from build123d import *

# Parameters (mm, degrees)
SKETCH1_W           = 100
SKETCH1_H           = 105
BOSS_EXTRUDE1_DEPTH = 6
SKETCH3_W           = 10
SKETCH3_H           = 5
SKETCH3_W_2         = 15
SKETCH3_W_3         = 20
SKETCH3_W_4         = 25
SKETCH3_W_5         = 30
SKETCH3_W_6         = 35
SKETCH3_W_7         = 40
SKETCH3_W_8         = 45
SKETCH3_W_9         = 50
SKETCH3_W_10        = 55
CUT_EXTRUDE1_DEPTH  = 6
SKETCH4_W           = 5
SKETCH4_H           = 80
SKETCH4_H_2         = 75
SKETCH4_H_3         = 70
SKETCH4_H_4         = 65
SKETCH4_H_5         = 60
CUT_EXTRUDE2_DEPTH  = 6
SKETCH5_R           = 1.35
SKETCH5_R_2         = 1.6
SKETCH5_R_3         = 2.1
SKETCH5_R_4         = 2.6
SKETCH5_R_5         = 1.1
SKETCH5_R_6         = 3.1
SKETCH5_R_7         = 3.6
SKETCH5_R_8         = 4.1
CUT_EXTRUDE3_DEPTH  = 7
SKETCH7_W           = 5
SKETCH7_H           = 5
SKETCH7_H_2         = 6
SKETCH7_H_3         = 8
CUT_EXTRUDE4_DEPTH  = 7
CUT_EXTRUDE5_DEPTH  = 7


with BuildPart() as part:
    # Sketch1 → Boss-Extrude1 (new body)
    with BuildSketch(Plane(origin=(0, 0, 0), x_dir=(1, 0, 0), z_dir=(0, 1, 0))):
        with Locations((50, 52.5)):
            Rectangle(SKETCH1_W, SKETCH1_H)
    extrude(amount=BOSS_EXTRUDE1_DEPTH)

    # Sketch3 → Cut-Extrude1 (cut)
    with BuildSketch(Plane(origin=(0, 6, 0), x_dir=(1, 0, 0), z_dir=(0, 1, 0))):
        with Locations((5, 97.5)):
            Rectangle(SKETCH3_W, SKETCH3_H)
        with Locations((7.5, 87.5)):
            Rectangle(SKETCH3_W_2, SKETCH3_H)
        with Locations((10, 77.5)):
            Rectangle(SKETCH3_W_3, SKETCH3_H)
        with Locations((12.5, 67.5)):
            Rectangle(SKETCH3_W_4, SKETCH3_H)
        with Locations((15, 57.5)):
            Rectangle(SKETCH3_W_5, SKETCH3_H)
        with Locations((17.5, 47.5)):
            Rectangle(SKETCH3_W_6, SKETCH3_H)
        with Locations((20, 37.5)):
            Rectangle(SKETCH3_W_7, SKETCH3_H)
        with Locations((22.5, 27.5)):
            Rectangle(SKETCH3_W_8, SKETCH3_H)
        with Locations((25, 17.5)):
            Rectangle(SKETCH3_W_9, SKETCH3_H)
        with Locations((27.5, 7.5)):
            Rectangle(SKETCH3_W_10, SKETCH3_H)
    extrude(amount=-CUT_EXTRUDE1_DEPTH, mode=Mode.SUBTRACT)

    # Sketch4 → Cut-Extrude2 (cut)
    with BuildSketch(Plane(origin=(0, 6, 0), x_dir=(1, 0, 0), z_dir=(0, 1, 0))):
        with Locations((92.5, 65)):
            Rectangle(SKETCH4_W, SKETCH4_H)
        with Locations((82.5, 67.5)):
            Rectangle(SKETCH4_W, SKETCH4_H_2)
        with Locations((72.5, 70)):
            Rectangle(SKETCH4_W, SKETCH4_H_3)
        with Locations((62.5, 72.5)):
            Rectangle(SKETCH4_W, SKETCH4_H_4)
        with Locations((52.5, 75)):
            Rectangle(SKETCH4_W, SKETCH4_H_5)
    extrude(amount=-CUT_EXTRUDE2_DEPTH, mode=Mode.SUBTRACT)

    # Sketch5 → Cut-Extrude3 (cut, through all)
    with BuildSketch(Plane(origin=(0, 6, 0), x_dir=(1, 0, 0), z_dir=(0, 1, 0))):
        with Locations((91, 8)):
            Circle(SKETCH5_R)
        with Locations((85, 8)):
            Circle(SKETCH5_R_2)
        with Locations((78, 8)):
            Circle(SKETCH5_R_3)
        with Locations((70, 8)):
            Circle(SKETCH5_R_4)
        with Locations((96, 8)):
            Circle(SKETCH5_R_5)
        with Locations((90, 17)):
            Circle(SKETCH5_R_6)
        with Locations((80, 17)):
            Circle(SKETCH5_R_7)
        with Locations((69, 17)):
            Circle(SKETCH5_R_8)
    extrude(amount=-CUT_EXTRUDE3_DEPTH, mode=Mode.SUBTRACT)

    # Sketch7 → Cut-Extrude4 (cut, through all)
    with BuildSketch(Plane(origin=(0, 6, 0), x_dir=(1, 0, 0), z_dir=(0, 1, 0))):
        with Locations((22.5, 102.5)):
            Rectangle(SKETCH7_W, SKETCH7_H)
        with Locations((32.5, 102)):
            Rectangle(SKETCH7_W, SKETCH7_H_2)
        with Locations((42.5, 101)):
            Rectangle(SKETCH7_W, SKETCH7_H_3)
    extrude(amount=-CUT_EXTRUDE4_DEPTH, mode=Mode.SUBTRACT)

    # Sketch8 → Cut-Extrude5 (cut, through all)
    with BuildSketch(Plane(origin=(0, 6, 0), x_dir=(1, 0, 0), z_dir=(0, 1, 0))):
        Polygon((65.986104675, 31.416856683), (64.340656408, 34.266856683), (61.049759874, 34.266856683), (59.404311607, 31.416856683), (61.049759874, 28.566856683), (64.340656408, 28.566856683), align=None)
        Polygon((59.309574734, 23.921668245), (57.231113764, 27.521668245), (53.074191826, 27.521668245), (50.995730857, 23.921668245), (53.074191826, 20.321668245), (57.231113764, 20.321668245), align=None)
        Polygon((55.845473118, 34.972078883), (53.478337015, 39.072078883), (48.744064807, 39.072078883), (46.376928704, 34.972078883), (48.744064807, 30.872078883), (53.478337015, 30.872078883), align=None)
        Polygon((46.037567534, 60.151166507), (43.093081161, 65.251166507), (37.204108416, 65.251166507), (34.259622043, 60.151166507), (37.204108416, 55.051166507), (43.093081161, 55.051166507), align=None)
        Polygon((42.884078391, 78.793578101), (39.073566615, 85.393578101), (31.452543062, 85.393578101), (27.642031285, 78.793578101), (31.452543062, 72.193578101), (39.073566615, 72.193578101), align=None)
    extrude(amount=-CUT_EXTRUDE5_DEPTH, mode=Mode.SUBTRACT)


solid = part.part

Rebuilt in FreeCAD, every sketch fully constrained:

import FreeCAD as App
import Part
import Sketcher
from FreeCAD import Vector
Q = App.Units.Quantity

doc = App.newDocument("Part")
params = doc.addObject("Spreadsheet::Sheet", "Params")
for row, (alias, value) in enumerate([
    ("sketch1_width", "100 mm"),
    ("sketch1_height", "105 mm"),
    ("pad1_length", "6 mm"),
    ("sketch2_width", "10 mm"),
    ("sketch2_width2", "15 mm"),
    ("sketch2_width3", "20 mm"),
    ("sketch2_width4", "25 mm"),
    ("sketch2_width5", "30 mm"),
    ("pocket1_length", "6 mm"),
    ("sketch3_width", "5 mm"),
    ("sketch3_height", "80 mm"),
    ("sketch3_height2", "75 mm"),
    ("sketch3_height3", "70 mm"),
    ("sketch3_height4", "65 mm"),
    ("pocket2_length", "6 mm"),
    ("sketch4_diameter", "2.7 mm"),
    ("sketch4_diameter2", "3.2 mm"),
    ("sketch4_diameter3", "4.2 mm"),
    ("sketch4_diameter4", "5.2 mm"),
    ("sketch4_diameter5", "2.2 mm"),
    ("sketch5_width", "5 mm"),
    ("sketch5_height", "6 mm"),
    ("sketch5_height2", "8 mm"),
], start=1):
    params.set(f"A{row}", alias)
    params.set(f"B{row}", "=" + value)
    params.setAlias(f"B{row}", alias)

body = doc.addObject("PartDesign::Body", "Body")

# Sketch on XZ plane
sketch1 = doc.addObject("Sketcher::SketchObject", "Sketch")
body.addObject(sketch1)
sketch1.AttachmentSupport = (doc.XZ_Plane, [""])
sketch1.MapMode = "FlatFace"
sketch1.addGeometry(Part.LineSegment(Vector(0, -105, 0), Vector(0, 0, 0)), False)
sketch1.addGeometry(Part.LineSegment(Vector(0, 0, 0), Vector(100, 0, 0)), False)
sketch1.addGeometry(Part.LineSegment(Vector(100, 0, 0), Vector(100, -105, 0)), False)
sketch1.addGeometry(Part.LineSegment(Vector(100, -105, 0), Vector(0, -105, 0)), False)
sketch1.addConstraint(Sketcher.Constraint("Coincident", 0, 2, 1, 1))
sketch1.addConstraint(Sketcher.Constraint("Coincident", 1, 2, 2, 1))
sketch1.addConstraint(Sketcher.Constraint("Coincident", 2, 2, 3, 1))
sketch1.addConstraint(Sketcher.Constraint("Coincident", 3, 2, 0, 1))
sketch1.addConstraint(Sketcher.Constraint("Vertical", 0))
sketch1.addConstraint(Sketcher.Constraint("Horizontal", 1))
sketch1.addConstraint(Sketcher.Constraint("Vertical", 2))
sketch1.addConstraint(Sketcher.Constraint("Horizontal", 3))
sketch1.addConstraint(Sketcher.Constraint("Coincident", 0, 2, -1, 1))
sketch1.addConstraint(Sketcher.Constraint("DistanceX", 1, 1, 1, 2, 100.0))
sketch1.addConstraint(Sketcher.Constraint("DistanceY", 0, 1, 0, 2, 105.0))
sketch1.setExpression("Constraints[9]", "Params.sketch1_width")
sketch1.setExpression("Constraints[10]", "Params.sketch1_height")
pad1 = doc.addObject("PartDesign::Pad", "Pad")
body.addObject(pad1)
pad1.Profile = sketch1
pad1.setExpression("Length", "Params.pad1_length")
pad1.Reversed = True

# Sketch on XZ plane
sketch2 = doc.addObject("Sketcher::SketchObject", "Sketch001")
body.addObject(sketch2)
sketch2.AttachmentSupport = (doc.XZ_Plane, [""])
sketch2.MapMode = "FlatFace"
sketch2.AttachmentOffset = App.Placement(Vector(0, 0, -6), App.Rotation())
sketch2.addGeometry(Part.LineSegment(Vector(0, -100, 0), Vector(0, -95, 0)), False)
sketch2.addGeometry(Part.LineSegment(Vector(0, -95, 0), Vector(10, -95, 0)), False)
sketch2.addGeometry(Part.LineSegment(Vector(10, -95, 0), Vector(10, -100, 0)), False)
sketch2.addGeometry(Part.LineSegment(Vector(10, -100, 0), Vector(0, -100, 0)), False)
sketch2.addGeometry(Part.LineSegment(Vector(0, -90, 0), Vector(0, -85, 0)), False)
sketch2.addGeometry(Part.LineSegment(Vector(0, -85, 0), Vector(15, -85, 0)), False)
sketch2.addGeometry(Part.LineSegment(Vector(15, -85, 0), Vector(15, -90, 0)), False)
sketch2.addGeometry(Part.LineSegment(Vector(15, -90, 0), Vector(0, -90, 0)), False)
sketch2.addGeometry(Part.LineSegment(Vector(0, -80, 0), Vector(0, -75, 0)), False)
sketch2.addGeometry(Part.LineSegment(Vector(0, -75, 0), Vector(20, -75, 0)), False)
sketch2.addGeometry(Part.LineSegment(Vector(20, -75, 0), Vector(20, -80, 0)), False)
sketch2.addGeometry(Part.LineSegment(Vector(20, -80, 0), Vector(0, -80, 0)), False)
sketch2.addGeometry(Part.LineSegment(Vector(0, -70, 0), Vector(0, -65, 0)), False)
sketch2.addGeometry(Part.LineSegment(Vector(0, -65, 0), Vector(25, -65, 0)), False)
sketch2.addGeometry(Part.LineSegment(Vector(25, -65, 0), Vector(25, -70, 0)), False)
sketch2.addGeometry(Part.LineSegment(Vector(25, -70, 0), Vector(0, -70, 0)), False)
sketch2.addGeometry(Part.LineSegment(Vector(0, -60, 0), Vector(0, -55, 0)), False)
sketch2.addGeometry(Part.LineSegment(Vector(0, -55, 0), Vector(30, -55, 0)), False)
sketch2.addGeometry(Part.LineSegment(Vector(30, -55, 0), Vector(30, -60, 0)), False)
sketch2.addGeometry(Part.LineSegment(Vector(30, -60, 0), Vector(0, -60, 0)), False)
sketch2.addGeometry(Part.LineSegment(Vector(0, -50, 0), Vector(0, -45, 0)), False)
sketch2.addGeometry(Part.LineSegment(Vector(0, -45, 0), Vector(35, -45, 0)), False)
sketch2.addGeometry(Part.LineSegment(Vector(35, -45, 0), Vector(35, -50, 0)), False)
sketch2.addGeometry(Part.LineSegment(Vector(35, -50, 0), Vector(0, -50, 0)), False)
sketch2.addGeometry(Part.LineSegment(Vector(0, -40, 0), Vector(0, -35, 0)), False)
sketch2.addGeometry(Part.LineSegment(Vector(0, -35, 0), Vector(40, -35, 0)), False)
sketch2.addGeometry(Part.LineSegment(Vector(40, -35, 0), Vector(40, -40, 0)), False)
sketch2.addGeometry(Part.LineSegment(Vector(40, -40, 0), Vector(0, -40, 0)), False)
sketch2.addGeometry(Part.LineSegment(Vector(0, -30, 0), Vector(0, -25, 0)), False)
sketch2.addGeometry(Part.LineSegment(Vector(0, -25, 0), Vector(45, -25, 0)), False)
sketch2.addGeometry(Part.LineSegment(Vector(45, -25, 0), Vector(45, -30, 0)), False)
sketch2.addGeometry(Part.LineSegment(Vector(45, -30, 0), Vector(0, -30, 0)), False)
sketch2.addGeometry(Part.LineSegment(Vector(0, -20, 0), Vector(0, -15, 0)), False)
sketch2.addGeometry(Part.LineSegment(Vector(0, -15, 0), Vector(50, -15, 0)), False)
sketch2.addGeometry(Part.LineSegment(Vector(50, -15, 0), Vector(50, -20, 0)), False)
sketch2.addGeometry(Part.LineSegment(Vector(50, -20, 0), Vector(0, -20, 0)), False)
sketch2.addGeometry(Part.LineSegment(Vector(0, -10, 0), Vector(0, -5, 0)), False)
sketch2.addGeometry(Part.LineSegment(Vector(0, -5, 0), Vector(55, -5, 0)), False)
sketch2.addGeometry(Part.LineSegment(Vector(55, -5, 0), Vector(55, -10, 0)), False)
sketch2.addGeometry(Part.LineSegment(Vector(55, -10, 0), Vector(0, -10, 0)), False)
sketch2.addConstraint(Sketcher.Constraint("Coincident", 0, 2, 1, 1))
sketch2.addConstraint(Sketcher.Constraint("Coincident", 1, 2, 2, 1))
sketch2.addConstraint(Sketcher.Constraint("Coincident", 2, 2, 3, 1))
sketch2.addConstraint(Sketcher.Constraint("Coincident", 3, 2, 0, 1))
sketch2.addConstraint(Sketcher.Constraint("Coincident", 4, 2, 5, 1))
sketch2.addConstraint(Sketcher.Constraint("Coincident", 5, 2, 6, 1))
sketch2.addConstraint(Sketcher.Constraint("Coincident", 6, 2, 7, 1))
sketch2.addConstraint(Sketcher.Constraint("Coincident", 7, 2, 4, 1))
sketch2.addConstraint(Sketcher.Constraint("Coincident", 8, 2, 9, 1))
sketch2.addConstraint(Sketcher.Constraint("Coincident", 9, 2, 10, 1))
sketch2.addConstraint(Sketcher.Constraint("Coincident", 10, 2, 11, 1))
sketch2.addConstraint(Sketcher.Constraint("Coincident", 11, 2, 8, 1))
sketch2.addConstraint(Sketcher.Constraint("Coincident", 12, 2, 13, 1))
sketch2.addConstraint(Sketcher.Constraint("Coincident", 13, 2, 14, 1))
sketch2.addConstraint(Sketcher.Constraint("Coincident", 14, 2, 15, 1))
sketch2.addConstraint(Sketcher.Constraint("Coincident", 15, 2, 12, 1))
sketch2.addConstraint(Sketcher.Constraint("Coincident", 16, 2, 17, 1))
sketch2.addConstraint(Sketcher.Constraint("Coincident", 17, 2, 18, 1))
sketch2.addConstraint(Sketcher.Constraint("Coincident", 18, 2, 19, 1))
sketch2.addConstraint(Sketcher.Constraint("Coincident", 19, 2, 16, 1))
sketch2.addConstraint(Sketcher.Constraint("Coincident", 20, 2, 21, 1))
sketch2.addConstraint(Sketcher.Constraint("Coincident", 21, 2, 22, 1))
sketch2.addConstraint(Sketcher.Constraint("Coincident", 22, 2, 23, 1))
sketch2.addConstraint(Sketcher.Constraint("Coincident", 23, 2, 20, 1))
sketch2.addConstraint(Sketcher.Constraint("Coincident", 24, 2, 25, 1))
sketch2.addConstraint(Sketcher.Constraint("Coincident", 25, 2, 26, 1))
sketch2.addConstraint(Sketcher.Constraint("Coincident", 26, 2, 27, 1))
sketch2.addConstraint(Sketcher.Constraint("Coincident", 27, 2, 24, 1))
sketch2.addConstraint(Sketcher.Constraint("Coincident", 28, 2, 29, 1))
sketch2.addConstraint(Sketcher.Constraint("Coincident", 29, 2, 30, 1))
sketch2.addConstraint(Sketcher.Constraint("Coincident", 30, 2, 31, 1))
sketch2.addConstraint(Sketcher.Constraint("Coincident", 31, 2, 28, 1))
sketch2.addConstraint(Sketcher.Constraint("Coincident", 32, 2, 33, 1))
sketch2.addConstraint(Sketcher.Constraint("Coincident", 33, 2, 34, 1))
sketch2.addConstraint(Sketcher.Constraint("Coincident", 34, 2, 35, 1))
sketch2.addConstraint(Sketcher.Constraint("Coincident", 35, 2, 32, 1))
sketch2.addConstraint(Sketcher.Constraint("Coincident", 36, 2, 37, 1))
sketch2.addConstraint(Sketcher.Constraint("Coincident", 37, 2, 38, 1))
sketch2.addConstraint(Sketcher.Constraint("Coincident", 38, 2, 39, 1))
sketch2.addConstraint(Sketcher.Constraint("Coincident", 39, 2, 36, 1))
sketch2.addConstraint(Sketcher.Constraint("Vertical", 0))
sketch2.addConstraint(Sketcher.Constraint("Horizontal", 1))
sketch2.addConstraint(Sketcher.Constraint("Vertical", 2))
sketch2.addConstraint(Sketcher.Constraint("Horizontal", 3))
sketch2.addConstraint(Sketcher.Constraint("Vertical", 4))
sketch2.addConstraint(Sketcher.Constraint("Horizontal", 5))
sketch2.addConstraint(Sketcher.Constraint("Vertical", 6))
sketch2.addConstraint(Sketcher.Constraint("Horizontal", 7))
sketch2.addConstraint(Sketcher.Constraint("Vertical", 8))
sketch2.addConstraint(Sketcher.Constraint("Horizontal", 9))
sketch2.addConstraint(Sketcher.Constraint("Vertical", 10))
sketch2.addConstraint(Sketcher.Constraint("Horizontal", 11))
sketch2.addConstraint(Sketcher.Constraint("Vertical", 12))
sketch2.addConstraint(Sketcher.Constraint("Horizontal", 13))
sketch2.addConstraint(Sketcher.Constraint("Vertical", 14))
sketch2.addConstraint(Sketcher.Constraint("Horizontal", 15))
sketch2.addConstraint(Sketcher.Constraint("Vertical", 16))
sketch2.addConstraint(Sketcher.Constraint("Horizontal", 17))
sketch2.addConstraint(Sketcher.Constraint("Vertical", 18))
sketch2.addConstraint(Sketcher.Constraint("Horizontal", 19))
sketch2.addConstraint(Sketcher.Constraint("Vertical", 20))
sketch2.addConstraint(Sketcher.Constraint("Horizontal", 21))
sketch2.addConstraint(Sketcher.Constraint("Vertical", 22))
sketch2.addConstraint(Sketcher.Constraint("Horizontal", 23))
sketch2.addConstraint(Sketcher.Constraint("Vertical", 24))
sketch2.addConstraint(Sketcher.Constraint("Horizontal", 25))
sketch2.addConstraint(Sketcher.Constraint("Vertical", 26))
sketch2.addConstraint(Sketcher.Constraint("Horizontal", 27))
sketch2.addConstraint(Sketcher.Constraint("Vertical", 28))
sketch2.addConstraint(Sketcher.Constraint("Horizontal", 29))
sketch2.addConstraint(Sketcher.Constraint("Vertical", 30))
sketch2.addConstraint(Sketcher.Constraint("Horizontal", 31))
sketch2.addConstraint(Sketcher.Constraint("Vertical", 32))
sketch2.addConstraint(Sketcher.Constraint("Horizontal", 33))
sketch2.addConstraint(Sketcher.Constraint("Vertical", 34))
sketch2.addConstraint(Sketcher.Constraint("Horizontal", 35))
sketch2.addConstraint(Sketcher.Constraint("Vertical", 36))
sketch2.addConstraint(Sketcher.Constraint("Horizontal", 37))
sketch2.addConstraint(Sketcher.Constraint("Vertical", 38))
sketch2.addConstraint(Sketcher.Constraint("Horizontal", 39))
sketch2.addConstraint(Sketcher.Constraint("PointOnObject", 0, 2, -2))
sketch2.addConstraint(Sketcher.Constraint("PointOnObject", 4, 2, -2))
sketch2.addConstraint(Sketcher.Constraint("PointOnObject", 8, 2, -2))
sketch2.addConstraint(Sketcher.Constraint("PointOnObject", 12, 2, -2))
sketch2.addConstraint(Sketcher.Constraint("PointOnObject", 16, 2, -2))
sketch2.addConstraint(Sketcher.Constraint("PointOnObject", 20, 2, -2))
sketch2.addConstraint(Sketcher.Constraint("PointOnObject", 24, 2, -2))
sketch2.addConstraint(Sketcher.Constraint("PointOnObject", 28, 2, -2))
sketch2.addConstraint(Sketcher.Constraint("PointOnObject", 32, 2, -2))
sketch2.addConstraint(Sketcher.Constraint("PointOnObject", 36, 2, -2))
sketch2.addConstraint(Sketcher.Constraint("Equal", 2, 4))
sketch2.addConstraint(Sketcher.Constraint("Equal", 6, 8))
sketch2.addConstraint(Sketcher.Constraint("Equal", 10, 12))
sketch2.addConstraint(Sketcher.Constraint("Equal", 14, 16))
sketch2.addConstraint(Sketcher.Constraint("Equal", 18, 20))
sketch2.addConstraint(Sketcher.Constraint("Equal", 22, 24))
sketch2.addConstraint(Sketcher.Constraint("Equal", 26, 28))
sketch2.addConstraint(Sketcher.Constraint("Equal", 30, 32))
sketch2.addConstraint(Sketcher.Constraint("Equal", 34, 36))
sketch2.addConstraint(Sketcher.Constraint("DistanceX", 1, 1, 1, 2, 10.0))
sketch2.addConstraint(Sketcher.Constraint("DistanceX", 5, 1, 5, 2, 15.0))
sketch2.addConstraint(Sketcher.Constraint("DistanceX", 9, 1, 9, 2, 20.0))
sketch2.addConstraint(Sketcher.Constraint("DistanceX", 13, 1, 13, 2, 25.0))
sketch2.addConstraint(Sketcher.Constraint("DistanceX", 17, 1, 17, 2, 30.0))
sketch2.addConstraint(Sketcher.Constraint("DistanceX", 21, 1, 21, 2, 35.0))
sketch2.addConstraint(Sketcher.Constraint("DistanceX", 25, 1, 25, 2, 40.0))
sketch2.addConstraint(Sketcher.Constraint("DistanceX", 29, 1, 29, 2, 45.0))
sketch2.addConstraint(Sketcher.Constraint("DistanceX", 33, 1, 33, 2, 50.0))
sketch2.addConstraint(Sketcher.Constraint("DistanceX", 37, 1, 37, 2, 55.0))
sketch2.addConstraint(Sketcher.Constraint("DistanceY", 0, 1, 0, 2, 5.0))
sketch2.addConstraint(Sketcher.Constraint("DistanceY", 0, 2, -1, 1, 95.0))
sketch2.addConstraint(Sketcher.Constraint("DistanceY", 4, 2, -1, 1, 85.0))
sketch2.addConstraint(Sketcher.Constraint("DistanceY", 8, 2, -1, 1, 75.0))
sketch2.addConstraint(Sketcher.Constraint("DistanceY", 12, 2, -1, 1, 65.0))
sketch2.addConstraint(Sketcher.Constraint("DistanceY", 16, 2, -1, 1, 55.0))
sketch2.addConstraint(Sketcher.Constraint("DistanceY", 20, 2, -1, 1, 45.0))
sketch2.addConstraint(Sketcher.Constraint("DistanceY", 24, 2, -1, 1, 35.0))
sketch2.addConstraint(Sketcher.Constraint("DistanceY", 28, 2, -1, 1, 25.0))
sketch2.addConstraint(Sketcher.Constraint("DistanceY", 32, 2, -1, 1, 15.0))
sketch2.addConstraint(Sketcher.Constraint("DistanceY", 36, 2, -1, 1, 5.0))
sketch2.setExpression("Constraints[99]", "Params.sketch2_width")
sketch2.setExpression("Constraints[100]", "Params.sketch2_width2")
sketch2.setExpression("Constraints[101]", "Params.sketch2_width3")
sketch2.setExpression("Constraints[102]", "Params.sketch2_width4")
sketch2.setExpression("Constraints[103]", "Params.sketch2_width5")
pocket1 = doc.addObject("PartDesign::Pocket", "Pocket")
body.addObject(pocket1)
pocket1.Profile = sketch2
pocket1.setExpression("Length", "Params.pocket1_length")
pocket1.Reversed = True

# Sketch on XZ plane
sketch3 = doc.addObject("Sketcher::SketchObject", "Sketch002")
body.addObject(sketch3)
sketch3.AttachmentSupport = (doc.XZ_Plane, [""])
sketch3.MapMode = "FlatFace"
sketch3.AttachmentOffset = App.Placement(Vector(0, 0, -6), App.Rotation())
sketch3.addGeometry(Part.LineSegment(Vector(90, -105, 0), Vector(90, -25, 0)), False)
sketch3.addGeometry(Part.LineSegment(Vector(90, -25, 0), Vector(95, -25, 0)), False)
sketch3.addGeometry(Part.LineSegment(Vector(95, -25, 0), Vector(95, -105, 0)), False)
sketch3.addGeometry(Part.LineSegment(Vector(95, -105, 0), Vector(90, -105, 0)), False)
sketch3.addGeometry(Part.LineSegment(Vector(80, -105, 0), Vector(80, -30, 0)), False)
sketch3.addGeometry(Part.LineSegment(Vector(80, -30, 0), Vector(85, -30, 0)), False)
sketch3.addGeometry(Part.LineSegment(Vector(85, -30, 0), Vector(85, -105, 0)), False)
sketch3.addGeometry(Part.LineSegment(Vector(85, -105, 0), Vector(80, -105, 0)), False)
sketch3.addGeometry(Part.LineSegment(Vector(70, -105, 0), Vector(70, -35, 0)), False)
sketch3.addGeometry(Part.LineSegment(Vector(70, -35, 0), Vector(75, -35, 0)), False)
sketch3.addGeometry(Part.LineSegment(Vector(75, -35, 0), Vector(75, -105, 0)), False)
sketch3.addGeometry(Part.LineSegment(Vector(75, -105, 0), Vector(70, -105, 0)), False)
sketch3.addGeometry(Part.LineSegment(Vector(60, -105, 0), Vector(60, -40, 0)), False)
sketch3.addGeometry(Part.LineSegment(Vector(60, -40, 0), Vector(65, -40, 0)), False)
sketch3.addGeometry(Part.LineSegment(Vector(65, -40, 0), Vector(65, -105, 0)), False)
sketch3.addGeometry(Part.LineSegment(Vector(65, -105, 0), Vector(60, -105, 0)), False)
sketch3.addGeometry(Part.LineSegment(Vector(50, -105, 0), Vector(50, -45, 0)), False)
sketch3.addGeometry(Part.LineSegment(Vector(50, -45, 0), Vector(55, -45, 0)), False)
sketch3.addGeometry(Part.LineSegment(Vector(55, -45, 0), Vector(55, -105, 0)), False)
sketch3.addGeometry(Part.LineSegment(Vector(55, -105, 0), Vector(50, -105, 0)), False)
sketch3.addConstraint(Sketcher.Constraint("Coincident", 0, 2, 1, 1))
sketch3.addConstraint(Sketcher.Constraint("Coincident", 1, 2, 2, 1))
sketch3.addConstraint(Sketcher.Constraint("Coincident", 2, 2, 3, 1))
sketch3.addConstraint(Sketcher.Constraint("Coincident", 3, 2, 0, 1))
sketch3.addConstraint(Sketcher.Constraint("Coincident", 4, 2, 5, 1))
sketch3.addConstraint(Sketcher.Constraint("Coincident", 5, 2, 6, 1))
sketch3.addConstraint(Sketcher.Constraint("Coincident", 6, 2, 7, 1))
sketch3.addConstraint(Sketcher.Constraint("Coincident", 7, 2, 4, 1))
sketch3.addConstraint(Sketcher.Constraint("Coincident", 8, 2, 9, 1))
sketch3.addConstraint(Sketcher.Constraint("Coincident", 9, 2, 10, 1))
sketch3.addConstraint(Sketcher.Constraint("Coincident", 10, 2, 11, 1))
sketch3.addConstraint(Sketcher.Constraint("Coincident", 11, 2, 8, 1))
sketch3.addConstraint(Sketcher.Constraint("Coincident", 12, 2, 13, 1))
sketch3.addConstraint(Sketcher.Constraint("Coincident", 13, 2, 14, 1))
sketch3.addConstraint(Sketcher.Constraint("Coincident", 14, 2, 15, 1))
sketch3.addConstraint(Sketcher.Constraint("Coincident", 15, 2, 12, 1))
sketch3.addConstraint(Sketcher.Constraint("Coincident", 16, 2, 17, 1))
sketch3.addConstraint(Sketcher.Constraint("Coincident", 17, 2, 18, 1))
sketch3.addConstraint(Sketcher.Constraint("Coincident", 18, 2, 19, 1))
sketch3.addConstraint(Sketcher.Constraint("Coincident", 19, 2, 16, 1))
sketch3.addConstraint(Sketcher.Constraint("Vertical", 0))
sketch3.addConstraint(Sketcher.Constraint("Horizontal", 1))
sketch3.addConstraint(Sketcher.Constraint("Vertical", 2))
sketch3.addConstraint(Sketcher.Constraint("Horizontal", 3))
sketch3.addConstraint(Sketcher.Constraint("Vertical", 4))
sketch3.addConstraint(Sketcher.Constraint("Horizontal", 5))
sketch3.addConstraint(Sketcher.Constraint("Vertical", 6))
sketch3.addConstraint(Sketcher.Constraint("Horizontal", 7))
sketch3.addConstraint(Sketcher.Constraint("Vertical", 8))
sketch3.addConstraint(Sketcher.Constraint("Horizontal", 9))
sketch3.addConstraint(Sketcher.Constraint("Vertical", 10))
sketch3.addConstraint(Sketcher.Constraint("Horizontal", 11))
sketch3.addConstraint(Sketcher.Constraint("Vertical", 12))
sketch3.addConstraint(Sketcher.Constraint("Horizontal", 13))
sketch3.addConstraint(Sketcher.Constraint("Vertical", 14))
sketch3.addConstraint(Sketcher.Constraint("Horizontal", 15))
sketch3.addConstraint(Sketcher.Constraint("Vertical", 16))
sketch3.addConstraint(Sketcher.Constraint("Horizontal", 17))
sketch3.addConstraint(Sketcher.Constraint("Vertical", 18))
sketch3.addConstraint(Sketcher.Constraint("Horizontal", 19))
sketch3.addConstraint(Sketcher.Constraint("Horizontal", 3, 2, 6, 2))
sketch3.addConstraint(Sketcher.Constraint("Horizontal", 7, 2, 10, 2))
sketch3.addConstraint(Sketcher.Constraint("Horizontal", 11, 2, 14, 2))
sketch3.addConstraint(Sketcher.Constraint("Horizontal", 15, 2, 18, 2))
sketch3.addConstraint(Sketcher.Constraint("Equal", 3, 5))
sketch3.addConstraint(Sketcher.Constraint("Equal", 7, 9))
sketch3.addConstraint(Sketcher.Constraint("Equal", 11, 13))
sketch3.addConstraint(Sketcher.Constraint("Equal", 15, 17))
sketch3.addConstraint(Sketcher.Constraint("DistanceX", 1, 1, 1, 2, 5.0))
sketch3.addConstraint(Sketcher.Constraint("DistanceY", 0, 1, 0, 2, 80.0))
sketch3.addConstraint(Sketcher.Constraint("DistanceY", 4, 1, 4, 2, 75.0))
sketch3.addConstraint(Sketcher.Constraint("DistanceY", 8, 1, 8, 2, 70.0))
sketch3.addConstraint(Sketcher.Constraint("DistanceY", 12, 1, 12, 2, 65.0))
sketch3.addConstraint(Sketcher.Constraint("DistanceY", 16, 1, 16, 2, 60.0))
sketch3.addConstraint(Sketcher.Constraint("DistanceX", -1, 1, 0, 2, 90.0))
sketch3.addConstraint(Sketcher.Constraint("DistanceY", 0, 2, -1, 1, 25.0))
sketch3.addConstraint(Sketcher.Constraint("DistanceX", -1, 1, 4, 2, 80.0))
sketch3.addConstraint(Sketcher.Constraint("DistanceX", -1, 1, 8, 2, 70.0))
sketch3.addConstraint(Sketcher.Constraint("DistanceX", -1, 1, 12, 2, 60.0))
sketch3.addConstraint(Sketcher.Constraint("DistanceX", -1, 1, 16, 2, 50.0))
sketch3.setExpression("Constraints[48]", "Params.sketch3_width")
sketch3.setExpression("Constraints[49]", "Params.sketch3_height")
sketch3.setExpression("Constraints[50]", "Params.sketch3_height2")
sketch3.setExpression("Constraints[51]", "Params.sketch3_height3")
sketch3.setExpression("Constraints[52]", "Params.sketch3_height4")
pocket2 = doc.addObject("PartDesign::Pocket", "Pocket001")
body.addObject(pocket2)
pocket2.Profile = sketch3
pocket2.setExpression("Length", "Params.pocket2_length")
pocket2.Reversed = True

# Sketch on XZ plane
sketch4 = doc.addObject("Sketcher::SketchObject", "Sketch003")
body.addObject(sketch4)
sketch4.AttachmentSupport = (doc.XZ_Plane, [""])
sketch4.MapMode = "FlatFace"
sketch4.AttachmentOffset = App.Placement(Vector(0, 0, -6), App.Rotation())
sketch4.addGeometry(Part.Circle(Vector(91, -8, 0), Vector(0, 0, 1), 1.4), False)
sketch4.addGeometry(Part.Circle(Vector(85, -8, 0), Vector(0, 0, 1), 1.6), False)
sketch4.addGeometry(Part.Circle(Vector(78, -8, 0), Vector(0, 0, 1), 2.1), False)
sketch4.addGeometry(Part.Circle(Vector(70, -8, 0), Vector(0, 0, 1), 2.6), False)
sketch4.addGeometry(Part.Circle(Vector(96, -8, 0), Vector(0, 0, 1), 1.1), False)
sketch4.addGeometry(Part.Circle(Vector(90, -17, 0), Vector(0, 0, 1), 3.1), False)
sketch4.addGeometry(Part.Circle(Vector(80, -17, 0), Vector(0, 0, 1), 3.6), False)
sketch4.addGeometry(Part.Circle(Vector(69, -17, 0), Vector(0, 0, 1), 4.1), False)
sketch4.addConstraint(Sketcher.Constraint("Horizontal", 0, 3, 1, 3))
sketch4.addConstraint(Sketcher.Constraint("Horizontal", 1, 3, 2, 3))
sketch4.addConstraint(Sketcher.Constraint("Horizontal", 2, 3, 3, 3))
sketch4.addConstraint(Sketcher.Constraint("Horizontal", 3, 3, 4, 3))
sketch4.addConstraint(Sketcher.Constraint("Horizontal", 5, 3, 6, 3))
sketch4.addConstraint(Sketcher.Constraint("Horizontal", 6, 3, 7, 3))
sketch4.addConstraint(Sketcher.Constraint("Diameter", 0, 2.7))
sketch4.addConstraint(Sketcher.Constraint("Diameter", 1, 3.2))
sketch4.addConstraint(Sketcher.Constraint("Diameter", 2, 4.2))
sketch4.addConstraint(Sketcher.Constraint("Diameter", 3, 5.2))
sketch4.addConstraint(Sketcher.Constraint("Diameter", 4, 2.2))
sketch4.addConstraint(Sketcher.Constraint("Diameter", 5, 6.2))
sketch4.addConstraint(Sketcher.Constraint("Diameter", 6, 7.2))
sketch4.addConstraint(Sketcher.Constraint("Diameter", 7, 8.2))
sketch4.addConstraint(Sketcher.Constraint("DistanceX", -1, 1, 0, 3, 91.0))
sketch4.addConstraint(Sketcher.Constraint("DistanceY", 0, 3, -1, 1, 8.0))
sketch4.addConstraint(Sketcher.Constraint("DistanceX", -1, 1, 1, 3, 85.0))
sketch4.addConstraint(Sketcher.Constraint("DistanceX", -1, 1, 2, 3, 78.0))
sketch4.addConstraint(Sketcher.Constraint("DistanceX", -1, 1, 3, 3, 70.0))
sketch4.addConstraint(Sketcher.Constraint("DistanceX", -1, 1, 4, 3, 96.0))
sketch4.addConstraint(Sketcher.Constraint("DistanceX", -1, 1, 5, 3, 90.0))
sketch4.addConstraint(Sketcher.Constraint("DistanceY", 5, 3, -1, 1, 17.0))
sketch4.addConstraint(Sketcher.Constraint("DistanceX", -1, 1, 6, 3, 80.0))
sketch4.addConstraint(Sketcher.Constraint("DistanceX", -1, 1, 7, 3, 69.0))
sketch4.setExpression("Constraints[6]", "Params.sketch4_diameter")
sketch4.setExpression("Constraints[7]", "Params.sketch4_diameter2")
sketch4.setExpression("Constraints[8]", "Params.sketch4_diameter3")
sketch4.setExpression("Constraints[9]", "Params.sketch4_diameter4")
sketch4.setExpression("Constraints[10]", "Params.sketch4_diameter5")
pocket3 = doc.addObject("PartDesign::Pocket", "Pocket002")
body.addObject(pocket3)
pocket3.Profile = sketch4
pocket3.Type = "ThroughAll"
pocket3.Reversed = True

# Sketch on XZ plane
sketch5 = doc.addObject("Sketcher::SketchObject", "Sketch004")
body.addObject(sketch5)
sketch5.AttachmentSupport = (doc.XZ_Plane, [""])
sketch5.MapMode = "FlatFace"
sketch5.AttachmentOffset = App.Placement(Vector(0, 0, -6), App.Rotation())
sketch5.addGeometry(Part.LineSegment(Vector(20, -105, 0), Vector(20, -100, 0)), False)
sketch5.addGeometry(Part.LineSegment(Vector(20, -100, 0), Vector(25, -100, 0)), False)
sketch5.addGeometry(Part.LineSegment(Vector(25, -100, 0), Vector(25, -105, 0)), False)
sketch5.addGeometry(Part.LineSegment(Vector(25, -105, 0), Vector(20, -105, 0)), False)
sketch5.addGeometry(Part.LineSegment(Vector(30, -105, 0), Vector(30, -99, 0)), False)
sketch5.addGeometry(Part.LineSegment(Vector(30, -99, 0), Vector(35, -99, 0)), False)
sketch5.addGeometry(Part.LineSegment(Vector(35, -99, 0), Vector(35, -105, 0)), False)
sketch5.addGeometry(Part.LineSegment(Vector(35, -105, 0), Vector(30, -105, 0)), False)
sketch5.addGeometry(Part.LineSegment(Vector(40, -105, 0), Vector(40, -97, 0)), False)
sketch5.addGeometry(Part.LineSegment(Vector(40, -97, 0), Vector(45, -97, 0)), False)
sketch5.addGeometry(Part.LineSegment(Vector(45, -97, 0), Vector(45, -105, 0)), False)
sketch5.addGeometry(Part.LineSegment(Vector(45, -105, 0), Vector(40, -105, 0)), False)
sketch5.addConstraint(Sketcher.Constraint("Coincident", 0, 2, 1, 1))
sketch5.addConstraint(Sketcher.Constraint("Coincident", 1, 2, 2, 1))
sketch5.addConstraint(Sketcher.Constraint("Coincident", 2, 2, 3, 1))
sketch5.addConstraint(Sketcher.Constraint("Coincident", 3, 2, 0, 1))
sketch5.addConstraint(Sketcher.Constraint("Coincident", 4, 2, 5, 1))
sketch5.addConstraint(Sketcher.Constraint("Coincident", 5, 2, 6, 1))
sketch5.addConstraint(Sketcher.Constraint("Coincident", 6, 2, 7, 1))
sketch5.addConstraint(Sketcher.Constraint("Coincident", 7, 2, 4, 1))
sketch5.addConstraint(Sketcher.Constraint("Coincident", 8, 2, 9, 1))
sketch5.addConstraint(Sketcher.Constraint("Coincident", 9, 2, 10, 1))
sketch5.addConstraint(Sketcher.Constraint("Coincident", 10, 2, 11, 1))
sketch5.addConstraint(Sketcher.Constraint("Coincident", 11, 2, 8, 1))
sketch5.addConstraint(Sketcher.Constraint("Vertical", 0))
sketch5.addConstraint(Sketcher.Constraint("Horizontal", 1))
sketch5.addConstraint(Sketcher.Constraint("Vertical", 2))
sketch5.addConstraint(Sketcher.Constraint("Horizontal", 3))
sketch5.addConstraint(Sketcher.Constraint("Vertical", 4))
sketch5.addConstraint(Sketcher.Constraint("Horizontal", 5))
sketch5.addConstraint(Sketcher.Constraint("Vertical", 6))
sketch5.addConstraint(Sketcher.Constraint("Horizontal", 7))
sketch5.addConstraint(Sketcher.Constraint("Vertical", 8))
sketch5.addConstraint(Sketcher.Constraint("Horizontal", 9))
sketch5.addConstraint(Sketcher.Constraint("Vertical", 10))
sketch5.addConstraint(Sketcher.Constraint("Horizontal", 11))
sketch5.addConstraint(Sketcher.Constraint("Horizontal", 3, 2, 6, 2))
sketch5.addConstraint(Sketcher.Constraint("Horizontal", 7, 2, 10, 2))
sketch5.addConstraint(Sketcher.Constraint("Equal", 3, 5))
sketch5.addConstraint(Sketcher.Constraint("Equal", 7, 9))
sketch5.addConstraint(Sketcher.Constraint("Equal", 11, 0))
sketch5.addConstraint(Sketcher.Constraint("DistanceX", 1, 1, 1, 2, 5.0))
sketch5.addConstraint(Sketcher.Constraint("DistanceY", 4, 1, 4, 2, 6.0))
sketch5.addConstraint(Sketcher.Constraint("DistanceY", 8, 1, 8, 2, 8.0))
sketch5.addConstraint(Sketcher.Constraint("DistanceX", -1, 1, 0, 2, 20.0))
sketch5.addConstraint(Sketcher.Constraint("DistanceY", 0, 2, -1, 1, 100.0))
sketch5.addConstraint(Sketcher.Constraint("DistanceX", -1, 1, 4, 2, 30.0))
sketch5.addConstraint(Sketcher.Constraint("DistanceX", -1, 1, 8, 2, 40.0))
sketch5.setExpression("Constraints[29]", "Params.sketch5_width")
sketch5.setExpression("Constraints[30]", "Params.sketch5_height")
sketch5.setExpression("Constraints[31]", "Params.sketch5_height2")
pocket4 = doc.addObject("PartDesign::Pocket", "Pocket003")
body.addObject(pocket4)
pocket4.Profile = sketch5
pocket4.Type = "ThroughAll"
pocket4.Reversed = True

# Sketch on XZ plane
sketch6 = doc.addObject("Sketcher::SketchObject", "Sketch005")
body.addObject(sketch6)
sketch6.AttachmentSupport = (doc.XZ_Plane, [""])
sketch6.MapMode = "FlatFace"
sketch6.AttachmentOffset = App.Placement(Vector(0, 0, -6), App.Rotation())
sketch6.addGeometry(Part.LineSegment(Vector(66, -31.4, 0), Vector(64.3, -34.3, 0)), False)
sketch6.addGeometry(Part.LineSegment(Vector(64.3, -34.3, 0), Vector(61, -34.3, 0)), False)
sketch6.addGeometry(Part.LineSegment(Vector(61, -34.3, 0), Vector(59.4, -31.4, 0)), False)
sketch6.addGeometry(Part.LineSegment(Vector(59.4, -31.4, 0), Vector(61, -28.6, 0)), False)
sketch6.addGeometry(Part.LineSegment(Vector(61, -28.6, 0), Vector(64.3, -28.6, 0)), False)
sketch6.addGeometry(Part.LineSegment(Vector(64.3, -28.6, 0), Vector(66, -31.4, 0)), False)
sketch6.addGeometry(Part.LineSegment(Vector(59.3, -23.9, 0), Vector(57.2, -27.5, 0)), False)
sketch6.addGeometry(Part.LineSegment(Vector(57.2, -27.5, 0), Vector(53.1, -27.5, 0)), False)
sketch6.addGeometry(Part.LineSegment(Vector(53.1, -27.5, 0), Vector(51, -23.9, 0)), False)
sketch6.addGeometry(Part.LineSegment(Vector(51, -23.9, 0), Vector(53.1, -20.3, 0)), False)
sketch6.addGeometry(Part.LineSegment(Vector(53.1, -20.3, 0), Vector(57.2, -20.3, 0)), False)
sketch6.addGeometry(Part.LineSegment(Vector(57.2, -20.3, 0), Vector(59.3, -23.9, 0)), False)
sketch6.addGeometry(Part.LineSegment(Vector(55.8, -35, 0), Vector(53.5, -39.1, 0)), False)
sketch6.addGeometry(Part.LineSegment(Vector(53.5, -39.1, 0), Vector(48.7, -39.1, 0)), False)
sketch6.addGeometry(Part.LineSegment(Vector(48.7, -39.1, 0), Vector(46.4, -35, 0)), False)
sketch6.addGeometry(Part.LineSegment(Vector(46.4, -35, 0), Vector(48.7, -30.9, 0)), False)
sketch6.addGeometry(Part.LineSegment(Vector(48.7, -30.9, 0), Vector(53.5, -30.9, 0)), False)
sketch6.addGeometry(Part.LineSegment(Vector(53.5, -30.9, 0), Vector(55.8, -35, 0)), False)
sketch6.addGeometry(Part.LineSegment(Vector(46, -60.2, 0), Vector(43.1, -65.3, 0)), False)
sketch6.addGeometry(Part.LineSegment(Vector(43.1, -65.3, 0), Vector(37.2, -65.3, 0)), False)
sketch6.addGeometry(Part.LineSegment(Vector(37.2, -65.3, 0), Vector(34.3, -60.2, 0)), False)
sketch6.addGeometry(Part.LineSegment(Vector(34.3, -60.2, 0), Vector(37.2, -55.1, 0)), False)
sketch6.addGeometry(Part.LineSegment(Vector(37.2, -55.1, 0), Vector(43.1, -55.1, 0)), False)
sketch6.addGeometry(Part.LineSegment(Vector(43.1, -55.1, 0), Vector(46, -60.2, 0)), False)
sketch6.addGeometry(Part.LineSegment(Vector(42.9, -78.8, 0), Vector(39.1, -85.4, 0)), False)
sketch6.addGeometry(Part.LineSegment(Vector(39.1, -85.4, 0), Vector(31.5, -85.4, 0)), False)
sketch6.addGeometry(Part.LineSegment(Vector(31.5, -85.4, 0), Vector(27.6, -78.8, 0)), False)
sketch6.addGeometry(Part.LineSegment(Vector(27.6, -78.8, 0), Vector(31.5, -72.2, 0)), False)
sketch6.addGeometry(Part.LineSegment(Vector(31.5, -72.2, 0), Vector(39.1, -72.2, 0)), False)
sketch6.addGeometry(Part.LineSegment(Vector(39.1, -72.2, 0), Vector(42.9, -78.8, 0)), False)
sketch6.addConstraint(Sketcher.Constraint("Coincident", 0, 2, 1, 1))
sketch6.addConstraint(Sketcher.Constraint("Coincident", 1, 2, 2, 1))
sketch6.addConstraint(Sketcher.Constraint("Coincident", 2, 2, 3, 1))
sketch6.addConstraint(Sketcher.Constraint("Coincident", 3, 2, 4, 1))
sketch6.addConstraint(Sketcher.Constraint("Coincident", 4, 2, 5, 1))
sketch6.addConstraint(Sketcher.Constraint("Coincident", 5, 2, 0, 1))
sketch6.addConstraint(Sketcher.Constraint("Coincident", 6, 2, 7, 1))
sketch6.addConstraint(Sketcher.Constraint("Coincident", 7, 2, 8, 1))
sketch6.addConstraint(Sketcher.Constraint("Coincident", 8, 2, 9, 1))
sketch6.addConstraint(Sketcher.Constraint("Coincident", 9, 2, 10, 1))
sketch6.addConstraint(Sketcher.Constraint("Coincident", 10, 2, 11, 1))
sketch6.addConstraint(Sketcher.Constraint("Coincident", 11, 2, 6, 1))
sketch6.addConstraint(Sketcher.Constraint("Coincident", 12, 2, 13, 1))
sketch6.addConstraint(Sketcher.Constraint("Coincident", 13, 2, 14, 1))
sketch6.addConstraint(Sketcher.Constraint("Coincident", 14, 2, 15, 1))
sketch6.addConstraint(Sketcher.Constraint("Coincident", 15, 2, 16, 1))
sketch6.addConstraint(Sketcher.Constraint("Coincident", 16, 2, 17, 1))
sketch6.addConstraint(Sketcher.Constraint("Coincident", 17, 2, 12, 1))
sketch6.addConstraint(Sketcher.Constraint("Coincident", 18, 2, 19, 1))
sketch6.addConstraint(Sketcher.Constraint("Coincident", 19, 2, 20, 1))
sketch6.addConstraint(Sketcher.Constraint("Coincident", 20, 2, 21, 1))
sketch6.addConstraint(Sketcher.Constraint("Coincident", 21, 2, 22, 1))
sketch6.addConstraint(Sketcher.Constraint("Coincident", 22, 2, 23, 1))
sketch6.addConstraint(Sketcher.Constraint("Coincident", 23, 2, 18, 1))
sketch6.addConstraint(Sketcher.Constraint("Coincident", 24, 2, 25, 1))
sketch6.addConstraint(Sketcher.Constraint("Coincident", 25, 2, 26, 1))
sketch6.addConstraint(Sketcher.Constraint("Coincident", 26, 2, 27, 1))
sketch6.addConstraint(Sketcher.Constraint("Coincident", 27, 2, 28, 1))
sketch6.addConstraint(Sketcher.Constraint("Coincident", 28, 2, 29, 1))
sketch6.addConstraint(Sketcher.Constraint("Coincident", 29, 2, 24, 1))
sketch6.addConstraint(Sketcher.Constraint("Horizontal", 1))
sketch6.addConstraint(Sketcher.Constraint("Horizontal", 4))
sketch6.addConstraint(Sketcher.Constraint("Horizontal", 7))
sketch6.addConstraint(Sketcher.Constraint("Horizontal", 10))
sketch6.addConstraint(Sketcher.Constraint("Horizontal", 13))
sketch6.addConstraint(Sketcher.Constraint("Horizontal", 16))
sketch6.addConstraint(Sketcher.Constraint("Horizontal", 19))
sketch6.addConstraint(Sketcher.Constraint("Horizontal", 22))
sketch6.addConstraint(Sketcher.Constraint("Horizontal", 25))
sketch6.addConstraint(Sketcher.Constraint("Horizontal", 28))
sketch6.addConstraint(Sketcher.Constraint("Parallel", 0, 3))
sketch6.addConstraint(Sketcher.Constraint("Parallel", 2, 5))
sketch6.addConstraint(Sketcher.Constraint("Parallel", 3, 6))
sketch6.addConstraint(Sketcher.Constraint("Parallel", 5, 8))
sketch6.addConstraint(Sketcher.Constraint("Parallel", 6, 9))
sketch6.addConstraint(Sketcher.Constraint("Parallel", 8, 11))
sketch6.addConstraint(Sketcher.Constraint("Parallel", 9, 12))
sketch6.addConstraint(Sketcher.Constraint("Parallel", 11, 14))
sketch6.addConstraint(Sketcher.Constraint("Parallel", 12, 15))
sketch6.addConstraint(Sketcher.Constraint("Parallel", 14, 17))
sketch6.addConstraint(Sketcher.Constraint("Parallel", 15, 18))
sketch6.addConstraint(Sketcher.Constraint("Parallel", 17, 20))
sketch6.addConstraint(Sketcher.Constraint("Parallel", 18, 21))
sketch6.addConstraint(Sketcher.Constraint("Parallel", 20, 23))
sketch6.addConstraint(Sketcher.Constraint("Parallel", 21, 24))
sketch6.addConstraint(Sketcher.Constraint("Parallel", 23, 26))
sketch6.addConstraint(Sketcher.Constraint("Parallel", 24, 27))
sketch6.addConstraint(Sketcher.Constraint("Parallel", 26, 29))
sketch6.addConstraint(Sketcher.Constraint("Horizontal", 2, 2, 5, 2))
sketch6.addConstraint(Sketcher.Constraint("Horizontal", 8, 2, 11, 2))
sketch6.addConstraint(Sketcher.Constraint("Horizontal", 14, 2, 17, 2))
sketch6.addConstraint(Sketcher.Constraint("Horizontal", 20, 2, 23, 2))
sketch6.addConstraint(Sketcher.Constraint("Horizontal", 26, 2, 29, 2))
sketch6.addConstraint(Sketcher.Constraint("Vertical", 1, 2, 3, 2))
sketch6.addConstraint(Sketcher.Constraint("Vertical", 0, 2, 4, 2))
sketch6.addConstraint(Sketcher.Constraint("Vertical", 7, 2, 9, 2))
sketch6.addConstraint(Sketcher.Constraint("Vertical", 13, 2, 15, 2))
sketch6.addConstraint(Sketcher.Constraint("Vertical", 19, 2, 21, 2))
sketch6.addConstraint(Sketcher.Constraint("Vertical", 25, 2, 27, 2))
sketch6.addConstraint(Sketcher.Constraint("Angle", 0, Q("-120 deg")))
sketch6.addConstraint(Sketcher.Constraint("DistanceY", 1, 2, 3, 2, 5.7))
sketch6.addConstraint(Sketcher.Constraint("DistanceY", 7, 2, 8, 2, 3.6))
sketch6.addConstraint(Sketcher.Constraint("DistanceY", 13, 2, 14, 2, 4.1))
sketch6.addConstraint(Sketcher.Constraint("DistanceY", 19, 2, 20, 2, 5.1))
sketch6.addConstraint(Sketcher.Constraint("DistanceY", 25, 2, 26, 2, 6.6))
sketch6.addConstraint(Sketcher.Constraint("DistanceX", 24, 2, 23, 2, 6.964001))
sketch6.addConstraint(Sketcher.Constraint("DistanceX", 7, 2, 7, 1, 4.156922))
sketch6.addConstraint(Sketcher.Constraint("DistanceX", 1, 2, 1, 1, 3.290897))
sketch6.addConstraint(Sketcher.Constraint("DistanceX", 13, 2, 13, 1, 4.734272))
sketch6.addConstraint(Sketcher.Constraint("DistanceX", 19, 2, 19, 1, 5.888973))
sketch6.addConstraint(Sketcher.Constraint("DistanceX", 25, 2, 25, 1, 7.621024))
sketch6.addConstraint(Sketcher.Constraint("DistanceX", -1, 1, 1, 2, 61.04976))
sketch6.addConstraint(Sketcher.Constraint("DistanceY", 6, 2, -1, 1, 27.521668))
sketch6.addConstraint(Sketcher.Constraint("DistanceX", -1, 1, 7, 2, 53.074192))
sketch6.addConstraint(Sketcher.Constraint("DistanceY", 12, 2, -1, 1, 39.072079))
sketch6.addConstraint(Sketcher.Constraint("DistanceX", -1, 1, 14, 2, 46.376929))
sketch6.addConstraint(Sketcher.Constraint("DistanceX", -1, 1, 18, 2, 43.093081))
sketch6.addConstraint(Sketcher.Constraint("DistanceY", 24, 2, -1, 1, 85.393578))
sketch6.addConstraint(Sketcher.Constraint("DistanceY", 3, 2, 6, 2, 1.045188))
sketch6.addConstraint(Sketcher.Constraint("DistanceY", 24, 2, 19, 2, 20.142412))
pocket5 = doc.addObject("PartDesign::Pocket", "Pocket004")
body.addObject(pocket5)
pocket5.Profile = sketch6
pocket5.Type = "ThroughAll"
pocket5.Reversed = True

doc.recompute()
